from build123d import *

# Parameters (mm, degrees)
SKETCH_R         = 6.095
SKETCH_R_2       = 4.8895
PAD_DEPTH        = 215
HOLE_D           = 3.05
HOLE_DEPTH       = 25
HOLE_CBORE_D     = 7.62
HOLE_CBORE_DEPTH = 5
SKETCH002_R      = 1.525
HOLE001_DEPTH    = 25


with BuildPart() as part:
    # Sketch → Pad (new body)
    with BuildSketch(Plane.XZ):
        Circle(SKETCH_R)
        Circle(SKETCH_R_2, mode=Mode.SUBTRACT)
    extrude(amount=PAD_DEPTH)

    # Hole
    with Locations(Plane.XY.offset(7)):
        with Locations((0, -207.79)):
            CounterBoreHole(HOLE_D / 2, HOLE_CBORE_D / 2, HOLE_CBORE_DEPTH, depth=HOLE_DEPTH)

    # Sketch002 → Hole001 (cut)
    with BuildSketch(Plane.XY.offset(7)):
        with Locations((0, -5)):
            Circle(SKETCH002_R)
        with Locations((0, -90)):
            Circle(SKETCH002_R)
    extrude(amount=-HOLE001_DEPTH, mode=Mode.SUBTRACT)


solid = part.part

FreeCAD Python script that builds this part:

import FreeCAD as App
import Part
import Sketcher
from FreeCAD import Vector

doc = App.newDocument("Part")
body = doc.addObject("PartDesign::Body", "Body")

# Sketch on XZ plane
sketch1 = body.newObject("Sketcher::SketchObject", "Sketch")
sketch1.AttachmentSupport = (doc.getObject("XZ_Plane"), [""])
sketch1.MapMode = "FlatFace"
sketch1.addGeometry(Part.Circle(Vector(0, 0, 0), Vector(0, 0, 1), 6.1), False)
sketch1.addGeometry(Part.Circle(Vector(0, 0, 0), Vector(0, 0, 1), 4.9), False)
sketch1.addConstraint(Sketcher.Constraint("Coincident", 0, 3, -1, 1))
sketch1.addConstraint(Sketcher.Constraint("Coincident", 1, 3, -1, 1))
sketch1.addConstraint(Sketcher.Constraint("Diameter", 0, 12.19))
sketch1.addConstraint(Sketcher.Constraint("Diameter", 1, 9.779))
pad1 = body.newObject("PartDesign::Pad", "Pad")
pad1.Profile = sketch1
pad1.Length = 215

# Sketch on XY plane
sketch2 = body.newObject("Sketcher::SketchObject", "Sketch001")
sketch2.AttachmentSupport = (doc.getObject("XY_Plane"), [""])
sketch2.MapMode = "FlatFace"
sketch2.AttachmentOffset = App.Placement(Vector(0, 0, 7), App.Rotation())
sketch2.addGeometry(Part.Circle(Vector(0, -207.8, 0), Vector(0, 0, 1), 1.5), False)
sketch2.addConstraint(Sketcher.Constraint("PointOnObject", 0, 3, -2))
sketch2.addConstraint(Sketcher.Constraint("Diameter", 0, 3.05))
sketch2.addConstraint(Sketcher.Constraint("DistanceY", 0, 3, -1, 1, 207.79))
doc.recompute()
hole = body.newObject("PartDesign::Hole", "Hole")
hole.Profile = sketch2
hole.ThreadType = "None"
hole.Diameter = 3.05
hole.DepthType = "Dimension"
hole.Depth = 25
hole.DrillPoint = "Flat"
hole.HoleCutType = "Counterbore"
hole.HoleCutDiameter = 7.62
hole.HoleCutDepth = 5

# Sketch on XY plane
sketch3 = body.newObject("Sketcher::SketchObject", "Sketch002")
sketch3.AttachmentSupport = (doc.getObject("XY_Plane"), [""])
sketch3.MapMode = "FlatFace"
sketch3.AttachmentOffset = App.Placement(Vector(0, 0, 7), App.Rotation())
sketch3.addGeometry(Part.Circle(Vector(0, -5, 0), Vector(0, 0, 1), 1.5), False)
sketch3.addGeometry(Part.Circle(Vector(0, -90, 0), Vector(0, 0, 1), 1.5), False)
sketch3.addConstraint(Sketcher.Constraint("Equal", 0, 1))
sketch3.addConstraint(Sketcher.Constraint("PointOnObject", 0, 3, -2))
sketch3.addConstraint(Sketcher.Constraint("PointOnObject", 1, 3, -2))
sketch3.addConstraint(Sketcher.Constraint("Diameter", 0, 3.05))
sketch3.addConstraint(Sketcher.Constraint("DistanceY", 0, 3, -1, 1, 5.0))
sketch3.addConstraint(Sketcher.Constraint("DistanceY", 1, 3, -1, 1, 90.0))
pocket1 = body.newObject("PartDesign::Pocket", "Pocket")
pocket1.Profile = sketch3
pocket1.Length = 25

doc.recompute()
